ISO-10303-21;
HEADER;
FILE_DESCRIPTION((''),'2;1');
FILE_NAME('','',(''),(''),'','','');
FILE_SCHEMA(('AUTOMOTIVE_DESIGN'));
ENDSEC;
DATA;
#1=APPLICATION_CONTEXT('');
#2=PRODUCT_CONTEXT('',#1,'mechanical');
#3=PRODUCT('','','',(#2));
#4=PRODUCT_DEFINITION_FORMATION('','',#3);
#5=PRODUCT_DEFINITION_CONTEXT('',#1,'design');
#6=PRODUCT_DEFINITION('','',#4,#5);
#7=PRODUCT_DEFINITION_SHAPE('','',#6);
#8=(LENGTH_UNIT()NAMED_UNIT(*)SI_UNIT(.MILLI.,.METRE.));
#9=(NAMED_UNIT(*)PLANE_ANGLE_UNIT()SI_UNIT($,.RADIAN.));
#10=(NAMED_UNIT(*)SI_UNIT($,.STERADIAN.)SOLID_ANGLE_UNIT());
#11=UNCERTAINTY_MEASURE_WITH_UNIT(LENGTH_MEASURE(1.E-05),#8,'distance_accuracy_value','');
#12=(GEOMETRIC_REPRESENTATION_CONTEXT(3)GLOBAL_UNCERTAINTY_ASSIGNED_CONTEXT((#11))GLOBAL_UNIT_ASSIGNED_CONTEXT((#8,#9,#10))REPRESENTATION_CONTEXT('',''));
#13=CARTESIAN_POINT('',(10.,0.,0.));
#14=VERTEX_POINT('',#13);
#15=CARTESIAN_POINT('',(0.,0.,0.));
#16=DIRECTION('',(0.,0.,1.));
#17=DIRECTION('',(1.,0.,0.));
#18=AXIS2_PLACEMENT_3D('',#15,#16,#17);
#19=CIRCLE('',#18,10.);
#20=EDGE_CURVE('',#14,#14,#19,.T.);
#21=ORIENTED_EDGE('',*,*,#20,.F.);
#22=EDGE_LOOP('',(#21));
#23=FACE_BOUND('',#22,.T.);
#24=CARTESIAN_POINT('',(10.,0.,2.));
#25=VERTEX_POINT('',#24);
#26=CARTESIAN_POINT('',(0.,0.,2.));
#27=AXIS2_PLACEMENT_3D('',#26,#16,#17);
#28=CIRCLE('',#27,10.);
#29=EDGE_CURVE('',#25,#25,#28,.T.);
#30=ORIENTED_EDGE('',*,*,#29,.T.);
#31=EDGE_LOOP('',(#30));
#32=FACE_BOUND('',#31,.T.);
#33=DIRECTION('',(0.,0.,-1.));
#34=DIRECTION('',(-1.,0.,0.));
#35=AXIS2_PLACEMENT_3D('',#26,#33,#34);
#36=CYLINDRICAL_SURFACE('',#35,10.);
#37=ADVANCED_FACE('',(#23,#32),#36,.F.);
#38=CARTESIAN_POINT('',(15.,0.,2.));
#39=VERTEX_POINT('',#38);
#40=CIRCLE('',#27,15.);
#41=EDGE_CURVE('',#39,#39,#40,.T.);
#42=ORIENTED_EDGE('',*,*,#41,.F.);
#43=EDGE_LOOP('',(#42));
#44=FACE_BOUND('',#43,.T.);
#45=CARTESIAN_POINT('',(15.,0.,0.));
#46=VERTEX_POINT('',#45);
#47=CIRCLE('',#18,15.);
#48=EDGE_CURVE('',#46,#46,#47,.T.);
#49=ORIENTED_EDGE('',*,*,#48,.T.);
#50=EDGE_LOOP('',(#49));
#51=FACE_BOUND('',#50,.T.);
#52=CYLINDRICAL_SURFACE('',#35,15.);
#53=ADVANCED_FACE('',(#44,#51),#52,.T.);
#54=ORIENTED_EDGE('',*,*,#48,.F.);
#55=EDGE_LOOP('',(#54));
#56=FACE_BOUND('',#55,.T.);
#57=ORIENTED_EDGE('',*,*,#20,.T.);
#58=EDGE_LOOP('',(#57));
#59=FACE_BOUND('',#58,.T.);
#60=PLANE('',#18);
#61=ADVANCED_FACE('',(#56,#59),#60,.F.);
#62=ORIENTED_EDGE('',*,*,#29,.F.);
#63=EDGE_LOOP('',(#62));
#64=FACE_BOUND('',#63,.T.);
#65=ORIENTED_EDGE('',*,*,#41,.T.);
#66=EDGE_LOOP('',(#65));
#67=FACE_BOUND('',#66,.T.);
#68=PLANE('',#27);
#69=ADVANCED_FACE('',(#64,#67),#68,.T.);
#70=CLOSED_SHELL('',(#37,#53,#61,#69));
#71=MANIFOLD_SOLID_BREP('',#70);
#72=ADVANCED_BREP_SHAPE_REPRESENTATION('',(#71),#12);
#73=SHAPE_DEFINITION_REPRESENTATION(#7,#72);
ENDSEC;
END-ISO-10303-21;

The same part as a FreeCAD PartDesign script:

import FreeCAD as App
import Part
import Sketcher

V = App.Vector

doc = App.newDocument("Part")
body = doc.addObject("PartDesign::Body", "Body")

# Sketch on XY plane
sketch1 = body.newObject("Sketcher::SketchObject", "Sketch")
sketch1.AttachmentSupport = (doc.getObject("XY_Plane"), [""])
sketch1.MapMode = "FlatFace"
sketch1.addGeometry(Part.Circle(V(0, 0, 0), V(0, 0, 1), 15), False)
sketch1.addGeometry(Part.Circle(V(0, 0, 0), V(0, 0, 1), 10), False)
sketch1.addConstraint(Sketcher.Constraint("Coincident", 0, 3, -1, 1))
sketch1.addConstraint(Sketcher.Constraint("Coincident", 1, 3, -1, 1))
sketch1.addConstraint(Sketcher.Constraint("Diameter", 0, 30.0))
sketch1.addConstraint(Sketcher.Constraint("Diameter", 1, 20.0))
pad1 = body.newObject("PartDesign::Pad", "Pad")
pad1.Profile = sketch1
pad1.Length = 2

doc.recompute()
